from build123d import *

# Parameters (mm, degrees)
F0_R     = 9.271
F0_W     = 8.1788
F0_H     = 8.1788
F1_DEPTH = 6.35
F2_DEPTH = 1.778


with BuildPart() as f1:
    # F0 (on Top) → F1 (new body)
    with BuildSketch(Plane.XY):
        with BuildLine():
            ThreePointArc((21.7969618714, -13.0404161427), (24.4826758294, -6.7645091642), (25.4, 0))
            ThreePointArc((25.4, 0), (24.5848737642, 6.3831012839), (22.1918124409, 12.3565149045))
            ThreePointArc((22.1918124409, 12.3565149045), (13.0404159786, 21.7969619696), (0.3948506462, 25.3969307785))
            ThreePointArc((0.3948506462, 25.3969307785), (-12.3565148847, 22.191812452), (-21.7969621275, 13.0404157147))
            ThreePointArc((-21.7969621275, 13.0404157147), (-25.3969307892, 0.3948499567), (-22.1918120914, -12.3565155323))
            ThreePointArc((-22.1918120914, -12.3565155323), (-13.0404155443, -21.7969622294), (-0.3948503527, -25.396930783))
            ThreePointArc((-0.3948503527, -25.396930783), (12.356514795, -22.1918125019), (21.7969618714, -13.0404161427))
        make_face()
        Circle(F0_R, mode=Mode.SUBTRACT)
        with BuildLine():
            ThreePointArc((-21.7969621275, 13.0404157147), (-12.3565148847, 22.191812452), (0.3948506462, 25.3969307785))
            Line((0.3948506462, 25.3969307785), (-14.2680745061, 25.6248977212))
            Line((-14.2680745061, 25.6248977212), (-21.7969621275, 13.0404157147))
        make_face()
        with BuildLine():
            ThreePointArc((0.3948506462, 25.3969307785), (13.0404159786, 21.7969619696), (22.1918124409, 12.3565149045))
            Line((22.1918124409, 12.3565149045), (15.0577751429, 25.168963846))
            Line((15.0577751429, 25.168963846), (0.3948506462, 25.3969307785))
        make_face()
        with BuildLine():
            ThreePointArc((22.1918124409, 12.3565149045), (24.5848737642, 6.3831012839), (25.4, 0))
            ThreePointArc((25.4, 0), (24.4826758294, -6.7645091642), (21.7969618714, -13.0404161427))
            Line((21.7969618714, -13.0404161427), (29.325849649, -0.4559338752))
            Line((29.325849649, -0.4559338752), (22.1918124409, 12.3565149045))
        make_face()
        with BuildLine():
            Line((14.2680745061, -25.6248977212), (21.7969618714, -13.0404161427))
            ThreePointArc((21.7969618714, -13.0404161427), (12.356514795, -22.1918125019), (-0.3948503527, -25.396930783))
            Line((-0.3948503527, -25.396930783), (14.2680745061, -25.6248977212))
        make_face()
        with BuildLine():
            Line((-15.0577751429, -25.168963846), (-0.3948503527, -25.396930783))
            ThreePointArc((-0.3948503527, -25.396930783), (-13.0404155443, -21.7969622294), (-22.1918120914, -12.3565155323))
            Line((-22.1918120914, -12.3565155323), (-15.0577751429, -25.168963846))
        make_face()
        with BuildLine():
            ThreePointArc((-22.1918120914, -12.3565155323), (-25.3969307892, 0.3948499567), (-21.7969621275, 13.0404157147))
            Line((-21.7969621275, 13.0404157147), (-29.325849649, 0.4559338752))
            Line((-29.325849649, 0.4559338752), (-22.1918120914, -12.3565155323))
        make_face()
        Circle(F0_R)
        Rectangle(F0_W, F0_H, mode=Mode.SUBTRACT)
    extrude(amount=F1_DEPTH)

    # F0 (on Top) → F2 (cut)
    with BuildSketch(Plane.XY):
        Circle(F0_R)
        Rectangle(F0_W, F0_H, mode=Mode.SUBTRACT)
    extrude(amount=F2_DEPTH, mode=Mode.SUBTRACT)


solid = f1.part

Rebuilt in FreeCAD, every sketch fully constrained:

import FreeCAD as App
import Part
import Sketcher

V = App.Vector
Q = App.Units.Quantity


def add_polygon(sketch, points):
    """Adds a closed chain of lines whose ends are joined by coincident constraints."""
    first, n = sketch.GeometryCount, len(points)
    for a, b in zip(points, points[1:] + points[:1]):
        sketch.addGeometry(Part.LineSegment(App.Vector(*a, 0), App.Vector(*b, 0)), False)
    for i in range(n):
        sketch.addConstraint(Sketcher.Constraint("Coincident", first + i, 2, first + (i + 1) % n, 1))

doc = App.newDocument("Part")
body = doc.addObject("PartDesign::Body", "Body")

# Sketch on XY plane
sketch1 = body.newObject("Sketcher::SketchObject", "Sketch")
sketch1.AttachmentSupport = (doc.getObject("XY_Plane"), [""])
sketch1.MapMode = "FlatFace"
add_polygon(sketch1, [(22.191812, 12.356515), (15.057775, 25.168964), (-14.268075, 25.624898), (-29.32585, 0.455934), (-22.191812, -12.356516), (-15.057775, -25.168964), (-0.39485, -25.396931), (14.268075, -25.624898), (21.796962, -13.040416), (29.32585, -0.455934)])  # lines 0-9
add_polygon(sketch1, [(4.0894, -4.0894), (-4.0894, -4.0894), (-4.0894, 4.0894), (4.0894, 4.0894)])  # lines 10-13
sketch1.addConstraint([
    Sketcher.Constraint("Horizontal", 10),
    Sketcher.Constraint("Vertical", 11),
    Sketcher.Constraint("Horizontal", 12),
    Sketcher.Constraint("Vertical", 13),
    Sketcher.Constraint("Symmetric", 0, 2, 4, 2, -1, 1),
    Sketcher.Constraint("Symmetric", 1, 2, 6, 2, -1, 1),
    Sketcher.Constraint("Symmetric", 2, 2, 8, 2, -1, 1),
    Sketcher.Constraint("Symmetric", 3, 2, 9, 2, -1, 1),
    Sketcher.Constraint("Symmetric", 10, 2, 12, 2, -1, 1),
    Sketcher.Constraint("Parallel", 0, 3),
    Sketcher.Constraint("Parallel", 1, 5),
    Sketcher.Constraint("Parallel", 2, 7),
    Sketcher.Constraint("Equal", 12, 11),
    Sketcher.Constraint("Equal", 1, 2),
    Sketcher.Constraint("Equal", 0, 3),
    Sketcher.Constraint("Equal", 4, 5),
    Sketcher.Constraint("Equal", 5, 6),
    Sketcher.Constraint("Equal", 6, 7),
    Sketcher.Constraint("DistanceX", 10, 2, 10, 1, Q("0.322 in")),
    Sketcher.Constraint("DistanceX", 4, 2, 1, 2, Q("0.789701 mm")),
    Sketcher.Constraint("DistanceX", 2, 2, 5, 2, Q("28.930999 mm")),
    Sketcher.Constraint("DistanceY", 7, 2, 3, 2, Q("0.683901 mm")),
    Sketcher.Constraint("DistanceY", 5, 2, -1, 1, Q("25.396931 mm")),
])
pad1 = body.newObject("PartDesign::Pad", "Pad")
pad1.Profile = sketch1
pad1.Length = Q("0.25 in")

# Sketch on XY plane
sketch2 = body.newObject("Sketcher::SketchObject", "Sketch001")
sketch2.AttachmentSupport = (doc.getObject("XY_Plane"), [""])
sketch2.MapMode = "FlatFace"
sketch2.addGeometry(Part.Circle(V(0, 0, 0), V(0, 0, 1), 9.271), False)  # 0
add_polygon(sketch2, [(4.0894, -4.0894), (-4.0894, -4.0894), (-4.0894, 4.0894), (4.0894, 4.0894)])  # lines 1-4
sketch2.addConstraint([
    Sketcher.Constraint("Horizontal", 1),
    Sketcher.Constraint("Vertical", 2),
    Sketcher.Constraint("Horizontal", 3),
    Sketcher.Constraint("Vertical", 4),
    Sketcher.Constraint("Coincident", 0, 3, -1, 1),
    Sketcher.Constraint("Symmetric", 1, 2, 3, 2, -1, 1),
    Sketcher.Constraint("Equal", 3, 2),
    Sketcher.Constraint("Diameter", 0, Q("0.73 in")),
    Sketcher.Constraint("DistanceX", 1, 2, 1, 1, Q("0.322 in")),
])
pocket1 = body.newObject("PartDesign::Pocket", "Pocket")
pocket1.Profile = sketch2
pocket1.Length = Q("0.07 in")
pocket1.Reversed = True

doc.recompute()
